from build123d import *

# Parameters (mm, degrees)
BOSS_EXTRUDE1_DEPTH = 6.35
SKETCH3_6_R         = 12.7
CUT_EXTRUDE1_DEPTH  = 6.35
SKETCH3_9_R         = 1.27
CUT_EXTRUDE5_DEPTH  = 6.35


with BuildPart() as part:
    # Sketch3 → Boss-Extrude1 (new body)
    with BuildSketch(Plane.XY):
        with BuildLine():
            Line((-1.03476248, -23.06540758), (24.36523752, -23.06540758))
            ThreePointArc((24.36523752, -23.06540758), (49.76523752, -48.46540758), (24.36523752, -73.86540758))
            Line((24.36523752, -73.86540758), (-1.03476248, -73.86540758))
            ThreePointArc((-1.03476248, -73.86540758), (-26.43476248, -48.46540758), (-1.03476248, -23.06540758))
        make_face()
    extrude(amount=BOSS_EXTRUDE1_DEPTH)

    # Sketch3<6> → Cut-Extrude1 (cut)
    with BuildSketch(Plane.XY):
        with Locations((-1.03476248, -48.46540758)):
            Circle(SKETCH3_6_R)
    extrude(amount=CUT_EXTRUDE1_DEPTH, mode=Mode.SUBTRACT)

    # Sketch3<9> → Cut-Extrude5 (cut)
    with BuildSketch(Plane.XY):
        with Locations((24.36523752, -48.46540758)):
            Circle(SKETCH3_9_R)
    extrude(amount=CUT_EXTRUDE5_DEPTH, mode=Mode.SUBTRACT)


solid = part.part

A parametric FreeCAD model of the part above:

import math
import FreeCAD as App
import Part
import Sketcher

V = App.Vector
Q = App.Units.Quantity

doc = App.newDocument("Part")
body = doc.addObject("PartDesign::Body", "Body")

sketch1 = body.newObject("Sketcher::SketchObject", "Sketch")
sketch1.AttachmentSupport = (doc.getObject("XY_Plane"), [""])
sketch1.MapMode = "FlatFace"
sketch1.addGeometry([
    Part.LineSegment(V(24, -23, 0), V(-1, -23, 0)),
    Part.ArcOfCircle(Part.Circle(V(-1, -48, 0), V(0, 0, 1), 25), math.radians(90), math.radians(270)),
    Part.LineSegment(V(-1, -74, 0), V(24, -74, 0)),
    Part.ArcOfCircle(Part.Circle(V(24, -48, 0), V(0, 0, 1), 25), math.radians(-90), math.radians(90)),
], False)
sketch1.addConstraint([
    Sketcher.Constraint("Tangent", 0, 2, 1, 1),
    Sketcher.Constraint("Tangent", 1, 2, 2, 1),
    Sketcher.Constraint("Tangent", 2, 2, 3, 1),
    Sketcher.Constraint("Tangent", 3, 2, 0, 1),
    Sketcher.Constraint("Horizontal", 0),
    Sketcher.Constraint("Horizontal", 2),
    Sketcher.Constraint("Radius", 1, Q("1 in")),
    Sketcher.Constraint("DistanceX", 0, 2, 0, 1, Q("1 in")),
    Sketcher.Constraint("DistanceX", 1, 3, -1, 1, 1.034762),
    Sketcher.Constraint("DistanceY", 1, 3, -1, 1, 48.465408),
])
pad1 = body.newObject("PartDesign::Pad", "Pad")
pad1.Profile = sketch1
pad1.Length = Q("0.25 in")

sketch2 = body.newObject("Sketcher::SketchObject", "Sketch001")
sketch2.AttachmentSupport = (doc.getObject("XY_Plane"), [""])
sketch2.MapMode = "FlatFace"
sketch2.addGeometry(Part.Circle(V(-1, -48, 0), V(0, 0, 1), 13), False)
sketch2.addConstraint([
    Sketcher.Constraint("Diameter", 0, Q("1 in")),
    Sketcher.Constraint("DistanceX", 0, 3, -1, 1, 1.034762),
    Sketcher.Constraint("DistanceY", 0, 3, -1, 1, 48.465408),
])
pocket1 = body.newObject("PartDesign::Pocket", "Pocket")
pocket1.Profile = sketch2
pocket1.Length = Q("0.25 in")
pocket1.Reversed = True

sketch3 = body.newObject("Sketcher::SketchObject", "Sketch002")
sketch3.AttachmentSupport = (doc.getObject("XY_Plane"), [""])
sketch3.MapMode = "FlatFace"
sketch3.addGeometry(Part.Circle(V(24.4, -48.5, 0), V(0, 0, 1), 1.3), False)
sketch3.addConstraint([
    Sketcher.Constraint("Diameter", 0, Q("0.1 in")),
    Sketcher.Constraint("DistanceX", -1, 1, 0, 3, 24.365238),
    Sketcher.Constraint("DistanceY", 0, 3, -1, 1, 48.465408),
])
pocket2 = body.newObject("PartDesign::Pocket", "Pocket001")
pocket2.Profile = sketch3
pocket2.Length = Q("0.25 in")
pocket2.Reversed = True

doc.recompute()
